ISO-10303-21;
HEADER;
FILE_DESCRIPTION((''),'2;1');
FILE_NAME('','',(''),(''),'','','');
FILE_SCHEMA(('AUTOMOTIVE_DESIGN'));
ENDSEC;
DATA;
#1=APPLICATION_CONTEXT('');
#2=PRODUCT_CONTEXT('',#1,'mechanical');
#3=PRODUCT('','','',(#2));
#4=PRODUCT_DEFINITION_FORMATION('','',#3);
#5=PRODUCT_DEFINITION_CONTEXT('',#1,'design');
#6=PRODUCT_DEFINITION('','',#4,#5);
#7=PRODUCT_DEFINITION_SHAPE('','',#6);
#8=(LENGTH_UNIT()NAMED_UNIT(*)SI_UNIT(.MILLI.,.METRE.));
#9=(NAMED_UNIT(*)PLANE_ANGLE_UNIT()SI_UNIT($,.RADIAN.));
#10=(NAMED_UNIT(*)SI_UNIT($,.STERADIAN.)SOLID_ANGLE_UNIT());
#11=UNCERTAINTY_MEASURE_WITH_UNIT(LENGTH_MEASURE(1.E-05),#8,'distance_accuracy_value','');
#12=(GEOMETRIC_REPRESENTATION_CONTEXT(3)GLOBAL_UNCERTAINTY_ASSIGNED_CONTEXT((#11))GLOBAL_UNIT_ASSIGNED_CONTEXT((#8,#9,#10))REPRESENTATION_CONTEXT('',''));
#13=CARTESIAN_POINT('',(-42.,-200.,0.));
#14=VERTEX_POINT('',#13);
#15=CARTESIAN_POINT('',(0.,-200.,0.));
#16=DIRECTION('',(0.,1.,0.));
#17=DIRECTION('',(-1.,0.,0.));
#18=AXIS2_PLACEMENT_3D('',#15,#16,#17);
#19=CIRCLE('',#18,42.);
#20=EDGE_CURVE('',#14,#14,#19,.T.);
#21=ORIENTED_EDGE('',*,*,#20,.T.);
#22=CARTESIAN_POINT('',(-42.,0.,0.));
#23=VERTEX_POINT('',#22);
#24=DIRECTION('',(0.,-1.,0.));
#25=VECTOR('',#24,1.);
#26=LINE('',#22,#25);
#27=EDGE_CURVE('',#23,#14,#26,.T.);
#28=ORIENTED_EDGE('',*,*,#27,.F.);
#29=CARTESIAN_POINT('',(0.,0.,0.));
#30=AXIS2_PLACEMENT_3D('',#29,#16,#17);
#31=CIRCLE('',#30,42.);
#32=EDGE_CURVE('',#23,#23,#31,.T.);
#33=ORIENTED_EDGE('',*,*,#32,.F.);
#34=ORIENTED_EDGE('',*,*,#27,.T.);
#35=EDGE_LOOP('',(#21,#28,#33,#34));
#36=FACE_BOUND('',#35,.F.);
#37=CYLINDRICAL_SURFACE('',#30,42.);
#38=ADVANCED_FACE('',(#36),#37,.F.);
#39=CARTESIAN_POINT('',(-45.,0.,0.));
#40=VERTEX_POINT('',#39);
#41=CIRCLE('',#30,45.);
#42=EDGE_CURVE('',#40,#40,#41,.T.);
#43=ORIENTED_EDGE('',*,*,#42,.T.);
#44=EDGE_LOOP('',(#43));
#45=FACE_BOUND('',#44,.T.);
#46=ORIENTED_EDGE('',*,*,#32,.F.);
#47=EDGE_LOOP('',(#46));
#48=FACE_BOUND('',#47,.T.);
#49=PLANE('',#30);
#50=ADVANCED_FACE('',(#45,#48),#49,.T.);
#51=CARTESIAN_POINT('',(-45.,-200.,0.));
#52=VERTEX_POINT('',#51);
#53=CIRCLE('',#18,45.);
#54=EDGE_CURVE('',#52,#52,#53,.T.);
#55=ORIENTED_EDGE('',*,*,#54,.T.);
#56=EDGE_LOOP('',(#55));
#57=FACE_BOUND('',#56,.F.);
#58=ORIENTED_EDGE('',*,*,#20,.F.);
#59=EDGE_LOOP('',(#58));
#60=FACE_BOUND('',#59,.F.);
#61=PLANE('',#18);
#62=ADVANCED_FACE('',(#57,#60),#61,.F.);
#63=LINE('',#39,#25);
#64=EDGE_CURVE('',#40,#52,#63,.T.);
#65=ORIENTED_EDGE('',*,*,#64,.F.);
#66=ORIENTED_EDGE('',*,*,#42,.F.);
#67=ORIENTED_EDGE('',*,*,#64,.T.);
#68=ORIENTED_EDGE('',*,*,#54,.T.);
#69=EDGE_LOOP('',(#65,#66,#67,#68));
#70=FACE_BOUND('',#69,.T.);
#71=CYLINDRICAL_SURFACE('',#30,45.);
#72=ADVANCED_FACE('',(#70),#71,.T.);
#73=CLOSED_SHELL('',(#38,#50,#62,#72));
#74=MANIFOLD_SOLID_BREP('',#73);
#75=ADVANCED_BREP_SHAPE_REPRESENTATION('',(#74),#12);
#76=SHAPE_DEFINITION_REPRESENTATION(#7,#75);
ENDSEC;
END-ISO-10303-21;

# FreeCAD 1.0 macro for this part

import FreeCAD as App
import Part
import Sketcher

V = App.Vector
Q = App.Units.Quantity

doc = App.newDocument("Part")
body = doc.addObject("PartDesign::Body", "Body")

# Sketch on XZ plane
sketch1 = body.newObject("Sketcher::SketchObject", "Sketch")
sketch1.AttachmentSupport = (doc.getObject("XZ_Plane"), [""])
sketch1.MapMode = "FlatFace"
sketch1.addGeometry([
    Part.Circle(V(0, 0, 0), V(0, 0, 1), 45),
    Part.Circle(V(0, 0, 0), V(0, 0, 1), 42),
], False)
sketch1.addConstraint([
    Sketcher.Constraint("Coincident", 0, 3, -1, 1),
    Sketcher.Constraint("Coincident", 1, 3, -1, 1),
    Sketcher.Constraint("Diameter", 0, Q("90 mm")),
    Sketcher.Constraint("Diameter", 1, Q("84 mm")),
])
pad1 = body.newObject("PartDesign::Pad", "Pad")
pad1.Profile = sketch1
pad1.Length = 200

doc.recompute()
